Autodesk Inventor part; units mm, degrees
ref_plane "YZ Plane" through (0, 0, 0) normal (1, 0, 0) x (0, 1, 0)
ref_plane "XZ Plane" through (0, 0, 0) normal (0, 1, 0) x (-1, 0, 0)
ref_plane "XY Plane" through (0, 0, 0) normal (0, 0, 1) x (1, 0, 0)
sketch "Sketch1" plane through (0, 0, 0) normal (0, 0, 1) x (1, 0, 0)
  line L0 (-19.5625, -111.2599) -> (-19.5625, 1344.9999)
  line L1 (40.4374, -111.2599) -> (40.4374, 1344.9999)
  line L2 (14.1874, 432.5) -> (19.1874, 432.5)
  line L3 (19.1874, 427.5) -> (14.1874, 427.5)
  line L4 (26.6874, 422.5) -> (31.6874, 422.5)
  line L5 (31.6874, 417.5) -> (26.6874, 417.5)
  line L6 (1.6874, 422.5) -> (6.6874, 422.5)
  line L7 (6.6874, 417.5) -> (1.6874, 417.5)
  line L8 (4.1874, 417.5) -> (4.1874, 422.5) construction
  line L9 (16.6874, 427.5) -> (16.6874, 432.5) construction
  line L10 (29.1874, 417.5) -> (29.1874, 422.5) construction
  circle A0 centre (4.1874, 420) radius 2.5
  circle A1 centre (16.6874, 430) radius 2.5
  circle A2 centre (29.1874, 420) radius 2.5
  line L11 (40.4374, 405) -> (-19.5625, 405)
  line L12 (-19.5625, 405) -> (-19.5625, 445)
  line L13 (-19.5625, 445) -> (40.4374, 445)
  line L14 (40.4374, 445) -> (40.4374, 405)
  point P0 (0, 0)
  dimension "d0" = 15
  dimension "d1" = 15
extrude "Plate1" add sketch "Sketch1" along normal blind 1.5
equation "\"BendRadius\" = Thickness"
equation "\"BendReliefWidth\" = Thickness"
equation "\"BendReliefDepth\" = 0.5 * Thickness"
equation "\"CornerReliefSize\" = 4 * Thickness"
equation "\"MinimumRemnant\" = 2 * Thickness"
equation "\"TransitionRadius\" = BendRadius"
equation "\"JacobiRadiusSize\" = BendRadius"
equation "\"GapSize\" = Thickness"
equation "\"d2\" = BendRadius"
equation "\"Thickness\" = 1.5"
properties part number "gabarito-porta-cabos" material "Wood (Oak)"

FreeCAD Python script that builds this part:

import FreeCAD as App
import Part
import Sketcher
Q = App.Units.Quantity


def add_polygon(sketch, points):
    """Adds a closed chain of lines whose ends are joined by coincident constraints."""
    first, n = sketch.GeometryCount, len(points)
    for a, b in zip(points, points[1:] + points[:1]):
        sketch.addGeometry(Part.LineSegment(App.Vector(*a, 0), App.Vector(*b, 0)), False)
    for i in range(n):
        sketch.addConstraint(Sketcher.Constraint("Coincident", first + i, 2, first + (i + 1) % n, 1))

doc = App.newDocument("Part")
params = doc.addObject("Spreadsheet::Sheet", "Params")
for row, (alias, value) in enumerate([
    ("sketch1_diameter", "5 mm"),
    ("sketch1_width", "60 mm"),
    ("sketch1_height", "40 mm"),
    ("pad1_length", "1.5 mm"),
], start=1):
    params.set(f"A{row}", alias)
    params.set(f"B{row}", "=" + value)
    params.setAlias(f"B{row}", alias)

body = doc.addObject("PartDesign::Body", "Body")

# Sketch on XY plane
sketch1 = doc.addObject("Sketcher::SketchObject", "Sketch")
body.addObject(sketch1)
sketch1.AttachmentSupport = (doc.XY_Plane, [""])
sketch1.MapMode = "FlatFace"
add_polygon(sketch1, [(-19.6, 445), (-19.6, 405), (40.4, 405), (40.4, 445)])  # lines 0-3
sketch1.addGeometry(Part.Circle(App.Vector(4.2, 420, 0), App.Vector(0, 0, 1), 2.5), False)  # 4
sketch1.addGeometry(Part.Circle(App.Vector(29.2, 420, 0), App.Vector(0, 0, 1), 2.5), False)  # 5
sketch1.addGeometry(Part.Circle(App.Vector(16.7, 430, 0), App.Vector(0, 0, 1), 2.5), False)  # 6
sketch1.addConstraint(Sketcher.Constraint("Vertical", 0))
sketch1.addConstraint(Sketcher.Constraint("Horizontal", 1))
sketch1.addConstraint(Sketcher.Constraint("Vertical", 2))
sketch1.addConstraint(Sketcher.Constraint("Horizontal", 3))
sketch1.addConstraint(Sketcher.Constraint("Equal", 4, 5))
sketch1.addConstraint(Sketcher.Constraint("Equal", 5, 6))
sketch1.addConstraint(Sketcher.Constraint("Horizontal", 4, 3, 5, 3))
sketch1.addConstraint(Sketcher.Constraint("Diameter", 4, Q("5 mm")))
sketch1.addConstraint(Sketcher.Constraint("DistanceY", 0, 2, 4, 3, Q("15 mm")))
sketch1.addConstraint(Sketcher.Constraint("DistanceY", 6, 3, 2, 2, Q("15 mm")))
sketch1.addConstraint(Sketcher.Constraint("DistanceX", 1, 1, 1, 2, Q("60 mm")))
sketch1.addConstraint(Sketcher.Constraint("DistanceY", 0, 2, 0, 1, Q("40 mm")))
sketch1.addConstraint(Sketcher.Constraint("DistanceY", -1, 1, 4, 3, Q("420 mm")))
sketch1.addConstraint(Sketcher.Constraint("DistanceX", 4, 3, 5, 3, Q("25 mm")))
sketch1.addConstraint(Sketcher.Constraint("DistanceX", 4, 3, 6, 3, Q("12.5 mm")))
sketch1.addConstraint(Sketcher.Constraint("DistanceX", 0, 2, 4, 3, Q("23.75 mm")))
sketch1.addConstraint(Sketcher.Constraint("DistanceX", -1, 1, 4, 3, Q("4.1874 mm")))
sketch1.setExpression("Constraints[11]", "Params.sketch1_diameter")
sketch1.setExpression("Constraints[14]", "Params.sketch1_width")
sketch1.setExpression("Constraints[15]", "Params.sketch1_height")
pad1 = doc.addObject("PartDesign::Pad", "Pad")
body.addObject(pad1)
pad1.Profile = sketch1
pad1.setExpression("Length", "Params.pad1_length")

doc.recompute()
